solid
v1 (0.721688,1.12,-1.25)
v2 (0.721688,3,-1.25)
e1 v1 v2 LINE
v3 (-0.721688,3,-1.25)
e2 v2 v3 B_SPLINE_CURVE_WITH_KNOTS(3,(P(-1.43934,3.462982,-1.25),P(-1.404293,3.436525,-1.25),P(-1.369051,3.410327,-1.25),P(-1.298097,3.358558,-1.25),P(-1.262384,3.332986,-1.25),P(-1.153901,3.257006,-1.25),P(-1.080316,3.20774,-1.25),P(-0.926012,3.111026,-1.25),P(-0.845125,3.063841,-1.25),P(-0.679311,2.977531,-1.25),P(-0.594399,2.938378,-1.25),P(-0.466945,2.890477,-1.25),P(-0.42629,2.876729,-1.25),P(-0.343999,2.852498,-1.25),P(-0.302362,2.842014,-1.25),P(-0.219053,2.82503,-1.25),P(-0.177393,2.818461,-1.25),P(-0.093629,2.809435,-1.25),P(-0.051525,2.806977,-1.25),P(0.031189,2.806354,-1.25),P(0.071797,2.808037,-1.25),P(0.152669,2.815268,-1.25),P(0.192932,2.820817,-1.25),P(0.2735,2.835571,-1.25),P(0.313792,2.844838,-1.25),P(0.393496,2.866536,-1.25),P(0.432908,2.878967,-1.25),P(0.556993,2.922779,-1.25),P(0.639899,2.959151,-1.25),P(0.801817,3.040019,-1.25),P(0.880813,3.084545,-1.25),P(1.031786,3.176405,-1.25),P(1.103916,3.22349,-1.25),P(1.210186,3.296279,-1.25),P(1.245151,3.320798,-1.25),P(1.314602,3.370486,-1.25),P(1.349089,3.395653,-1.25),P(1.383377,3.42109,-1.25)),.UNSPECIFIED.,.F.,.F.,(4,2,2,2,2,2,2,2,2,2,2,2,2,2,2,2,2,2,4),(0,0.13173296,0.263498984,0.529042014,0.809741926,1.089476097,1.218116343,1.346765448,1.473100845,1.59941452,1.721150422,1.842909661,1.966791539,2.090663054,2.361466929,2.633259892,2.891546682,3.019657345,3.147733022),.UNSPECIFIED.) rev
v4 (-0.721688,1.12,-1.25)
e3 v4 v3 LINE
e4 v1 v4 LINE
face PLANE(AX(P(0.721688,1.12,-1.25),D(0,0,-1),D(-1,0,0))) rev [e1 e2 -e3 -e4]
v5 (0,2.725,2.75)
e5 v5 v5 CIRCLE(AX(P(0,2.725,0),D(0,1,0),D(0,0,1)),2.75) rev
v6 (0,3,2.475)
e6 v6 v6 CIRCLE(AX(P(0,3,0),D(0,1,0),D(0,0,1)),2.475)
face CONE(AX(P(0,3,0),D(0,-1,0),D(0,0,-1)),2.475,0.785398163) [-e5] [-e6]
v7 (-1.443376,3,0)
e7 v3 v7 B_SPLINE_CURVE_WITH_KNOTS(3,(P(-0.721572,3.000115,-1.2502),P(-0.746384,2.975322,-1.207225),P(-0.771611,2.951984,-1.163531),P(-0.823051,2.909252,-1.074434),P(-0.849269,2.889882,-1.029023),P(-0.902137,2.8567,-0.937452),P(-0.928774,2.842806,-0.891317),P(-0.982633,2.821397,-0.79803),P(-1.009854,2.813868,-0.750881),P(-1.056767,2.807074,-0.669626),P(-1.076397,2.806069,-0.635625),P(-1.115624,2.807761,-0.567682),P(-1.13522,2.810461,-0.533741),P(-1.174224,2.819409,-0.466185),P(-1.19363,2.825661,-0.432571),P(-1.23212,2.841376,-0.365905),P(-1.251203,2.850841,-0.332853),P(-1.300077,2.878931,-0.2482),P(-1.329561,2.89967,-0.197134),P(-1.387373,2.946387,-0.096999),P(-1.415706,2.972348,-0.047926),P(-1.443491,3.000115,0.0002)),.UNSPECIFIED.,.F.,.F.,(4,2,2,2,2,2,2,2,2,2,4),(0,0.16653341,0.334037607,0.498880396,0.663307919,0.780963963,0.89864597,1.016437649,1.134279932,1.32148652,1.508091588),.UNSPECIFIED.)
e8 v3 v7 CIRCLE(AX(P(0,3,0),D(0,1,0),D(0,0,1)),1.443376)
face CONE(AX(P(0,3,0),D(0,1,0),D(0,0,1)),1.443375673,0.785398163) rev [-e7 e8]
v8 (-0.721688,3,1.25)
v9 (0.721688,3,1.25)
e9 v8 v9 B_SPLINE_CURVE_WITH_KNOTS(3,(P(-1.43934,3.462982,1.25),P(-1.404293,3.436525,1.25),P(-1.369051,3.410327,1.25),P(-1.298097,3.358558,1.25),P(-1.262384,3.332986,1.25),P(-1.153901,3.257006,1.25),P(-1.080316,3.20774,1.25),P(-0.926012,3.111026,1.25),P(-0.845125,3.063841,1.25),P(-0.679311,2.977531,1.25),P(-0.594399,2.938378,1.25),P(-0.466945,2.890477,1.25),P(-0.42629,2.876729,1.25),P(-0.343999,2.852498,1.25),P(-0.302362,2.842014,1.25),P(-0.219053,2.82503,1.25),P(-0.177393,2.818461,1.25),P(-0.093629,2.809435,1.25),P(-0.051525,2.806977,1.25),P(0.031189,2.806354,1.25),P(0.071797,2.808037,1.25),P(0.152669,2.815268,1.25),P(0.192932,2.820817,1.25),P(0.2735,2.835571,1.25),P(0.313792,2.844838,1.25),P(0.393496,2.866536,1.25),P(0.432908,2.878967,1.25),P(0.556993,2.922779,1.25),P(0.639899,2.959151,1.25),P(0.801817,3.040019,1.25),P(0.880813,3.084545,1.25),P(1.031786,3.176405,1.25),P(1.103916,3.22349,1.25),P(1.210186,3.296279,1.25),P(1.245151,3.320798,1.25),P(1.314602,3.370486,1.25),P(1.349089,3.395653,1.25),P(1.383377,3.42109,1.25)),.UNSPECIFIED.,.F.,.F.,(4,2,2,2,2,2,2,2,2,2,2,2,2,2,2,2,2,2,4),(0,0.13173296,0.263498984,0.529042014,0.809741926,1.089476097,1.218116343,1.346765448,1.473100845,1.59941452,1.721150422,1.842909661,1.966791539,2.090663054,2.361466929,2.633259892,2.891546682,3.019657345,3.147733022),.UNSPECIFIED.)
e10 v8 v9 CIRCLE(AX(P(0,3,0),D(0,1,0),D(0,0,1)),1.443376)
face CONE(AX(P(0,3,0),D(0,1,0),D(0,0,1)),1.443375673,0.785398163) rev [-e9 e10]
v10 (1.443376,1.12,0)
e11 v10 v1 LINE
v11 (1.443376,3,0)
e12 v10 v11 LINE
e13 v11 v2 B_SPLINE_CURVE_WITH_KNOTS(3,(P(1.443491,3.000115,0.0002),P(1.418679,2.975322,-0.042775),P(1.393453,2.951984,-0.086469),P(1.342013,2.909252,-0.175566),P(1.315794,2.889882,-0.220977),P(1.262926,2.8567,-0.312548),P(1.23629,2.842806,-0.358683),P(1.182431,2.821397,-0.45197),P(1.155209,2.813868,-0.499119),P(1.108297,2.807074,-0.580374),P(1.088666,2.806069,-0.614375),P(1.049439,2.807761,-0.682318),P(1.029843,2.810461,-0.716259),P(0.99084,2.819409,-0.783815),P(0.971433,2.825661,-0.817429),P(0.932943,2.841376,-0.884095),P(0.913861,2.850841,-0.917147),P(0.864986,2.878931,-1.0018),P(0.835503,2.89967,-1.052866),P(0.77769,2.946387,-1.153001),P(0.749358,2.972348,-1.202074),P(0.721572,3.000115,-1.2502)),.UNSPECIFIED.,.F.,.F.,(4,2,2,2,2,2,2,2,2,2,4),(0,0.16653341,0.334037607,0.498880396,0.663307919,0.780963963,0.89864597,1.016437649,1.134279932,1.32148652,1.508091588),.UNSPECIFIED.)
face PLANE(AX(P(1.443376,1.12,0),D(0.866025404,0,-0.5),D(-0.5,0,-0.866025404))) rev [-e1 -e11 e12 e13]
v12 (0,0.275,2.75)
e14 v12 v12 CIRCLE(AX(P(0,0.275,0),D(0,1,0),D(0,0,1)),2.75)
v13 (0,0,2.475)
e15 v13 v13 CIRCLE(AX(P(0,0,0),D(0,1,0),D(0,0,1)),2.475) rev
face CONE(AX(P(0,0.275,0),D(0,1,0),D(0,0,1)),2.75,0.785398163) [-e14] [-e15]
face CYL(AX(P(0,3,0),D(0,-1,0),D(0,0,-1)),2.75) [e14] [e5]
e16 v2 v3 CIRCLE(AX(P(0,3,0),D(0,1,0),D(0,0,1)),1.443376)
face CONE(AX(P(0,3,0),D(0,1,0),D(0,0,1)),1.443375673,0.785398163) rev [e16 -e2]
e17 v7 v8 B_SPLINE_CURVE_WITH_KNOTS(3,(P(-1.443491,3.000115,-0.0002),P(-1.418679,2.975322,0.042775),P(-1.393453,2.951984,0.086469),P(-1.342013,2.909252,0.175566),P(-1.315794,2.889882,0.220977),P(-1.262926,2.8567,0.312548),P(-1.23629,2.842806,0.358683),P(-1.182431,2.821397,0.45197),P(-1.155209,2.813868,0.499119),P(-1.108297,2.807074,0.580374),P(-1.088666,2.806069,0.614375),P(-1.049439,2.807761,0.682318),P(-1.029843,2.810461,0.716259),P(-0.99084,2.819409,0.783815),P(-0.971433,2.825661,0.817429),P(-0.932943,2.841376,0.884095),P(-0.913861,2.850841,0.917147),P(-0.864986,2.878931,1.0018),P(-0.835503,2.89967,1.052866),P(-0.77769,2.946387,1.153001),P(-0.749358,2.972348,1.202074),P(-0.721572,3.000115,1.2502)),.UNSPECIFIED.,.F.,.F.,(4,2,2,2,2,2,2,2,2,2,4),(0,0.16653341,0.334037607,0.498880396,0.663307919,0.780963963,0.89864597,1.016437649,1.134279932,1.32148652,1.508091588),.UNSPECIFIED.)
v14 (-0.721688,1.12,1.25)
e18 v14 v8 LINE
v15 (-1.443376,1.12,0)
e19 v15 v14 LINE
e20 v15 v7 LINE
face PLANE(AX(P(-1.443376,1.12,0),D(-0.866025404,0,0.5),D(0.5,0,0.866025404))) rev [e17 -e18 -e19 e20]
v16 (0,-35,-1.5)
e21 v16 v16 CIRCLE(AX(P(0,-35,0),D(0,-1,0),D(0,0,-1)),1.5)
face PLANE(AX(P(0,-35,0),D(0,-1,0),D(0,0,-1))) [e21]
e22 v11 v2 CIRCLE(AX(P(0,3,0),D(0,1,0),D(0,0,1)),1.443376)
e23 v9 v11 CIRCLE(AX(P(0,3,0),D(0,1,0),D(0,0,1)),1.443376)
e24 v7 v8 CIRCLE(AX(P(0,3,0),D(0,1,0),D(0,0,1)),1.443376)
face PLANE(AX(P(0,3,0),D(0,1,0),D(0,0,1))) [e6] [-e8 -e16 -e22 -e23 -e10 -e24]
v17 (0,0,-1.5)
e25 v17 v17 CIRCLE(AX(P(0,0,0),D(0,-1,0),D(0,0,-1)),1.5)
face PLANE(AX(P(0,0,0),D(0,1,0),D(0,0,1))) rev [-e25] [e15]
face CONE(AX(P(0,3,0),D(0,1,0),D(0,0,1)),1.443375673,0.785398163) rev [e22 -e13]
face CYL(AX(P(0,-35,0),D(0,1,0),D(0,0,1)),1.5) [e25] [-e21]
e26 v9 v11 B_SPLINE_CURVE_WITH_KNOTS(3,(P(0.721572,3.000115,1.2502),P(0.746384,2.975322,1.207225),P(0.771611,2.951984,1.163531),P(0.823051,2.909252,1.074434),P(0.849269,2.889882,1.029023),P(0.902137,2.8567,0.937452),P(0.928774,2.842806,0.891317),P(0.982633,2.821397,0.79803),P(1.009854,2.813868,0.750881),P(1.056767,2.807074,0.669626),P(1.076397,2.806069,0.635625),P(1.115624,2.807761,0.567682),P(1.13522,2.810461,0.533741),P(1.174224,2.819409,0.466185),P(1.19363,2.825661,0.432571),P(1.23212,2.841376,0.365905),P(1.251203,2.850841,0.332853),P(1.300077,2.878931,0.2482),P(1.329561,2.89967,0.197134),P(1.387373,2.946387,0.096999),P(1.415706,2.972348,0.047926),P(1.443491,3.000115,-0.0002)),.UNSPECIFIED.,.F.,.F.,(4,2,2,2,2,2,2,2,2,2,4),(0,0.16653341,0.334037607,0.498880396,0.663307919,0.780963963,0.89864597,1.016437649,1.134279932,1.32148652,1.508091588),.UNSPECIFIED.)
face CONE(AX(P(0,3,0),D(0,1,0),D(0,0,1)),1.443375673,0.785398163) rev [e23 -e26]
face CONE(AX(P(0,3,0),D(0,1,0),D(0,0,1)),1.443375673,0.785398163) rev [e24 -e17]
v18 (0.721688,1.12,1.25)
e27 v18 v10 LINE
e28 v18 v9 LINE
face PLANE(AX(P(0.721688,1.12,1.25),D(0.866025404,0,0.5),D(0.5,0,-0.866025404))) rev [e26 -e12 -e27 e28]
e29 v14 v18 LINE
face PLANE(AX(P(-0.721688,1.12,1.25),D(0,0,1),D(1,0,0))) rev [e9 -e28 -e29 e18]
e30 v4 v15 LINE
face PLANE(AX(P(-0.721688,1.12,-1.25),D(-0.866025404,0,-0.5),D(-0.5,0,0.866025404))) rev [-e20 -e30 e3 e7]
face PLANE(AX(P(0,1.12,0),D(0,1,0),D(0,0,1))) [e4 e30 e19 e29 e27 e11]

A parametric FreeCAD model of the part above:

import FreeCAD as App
import Part
import Sketcher
from FreeCAD import Vector
Q = App.Units.Quantity


def edges_at(feature, points):
    """Names of the edges that pass closest to the given points."""
    edges = feature.Shape.Edges
    near = lambda p: min(range(len(edges)), key=lambda i: edges[i].distToShape(Part.Vertex(*p))[0])
    return sorted({f"Edge{near(p) + 1}" for p in points})

doc = App.newDocument("Part")
body = doc.addObject("PartDesign::Body", "Body")

sketch1 = body.newObject("Sketcher::SketchObject", "Sketch")
sketch1.AttachmentSupport = (doc.getObject("XZ_Plane"), [""])
sketch1.MapMode = "FlatFace"
sketch1.addGeometry(Part.Circle(Vector(0, 0, 0), Vector(0, 0, 1), 2.75), False)
sketch1.addConstraint(Sketcher.Constraint("Coincident", 0, 3, -1, 1))
sketch1.addConstraint(Sketcher.Constraint("Diameter", 0, 5.5))
pad1 = body.newObject("PartDesign::Pad", "Pad")
pad1.Profile = sketch1
pad1.Length = 3
pad1.Reversed = True

sketch2 = body.newObject("Sketcher::SketchObject", "Sketch001")
sketch2.AttachmentSupport = (doc.getObject("XZ_Plane"), [""])
sketch2.MapMode = "FlatFace"
sketch2.AttachmentOffset = App.Placement(Vector(0, 0, -3), App.Rotation())
sketch2.addGeometry(Part.LineSegment(Vector(0.721688, -1.25, 0), Vector(-0.721688, -1.25, 0)), False)
sketch2.addGeometry(Part.LineSegment(Vector(-0.721688, -1.25, 0), Vector(-1.443376, 0, 0)), False)
sketch2.addGeometry(Part.LineSegment(Vector(-1.443376, 0, 0), Vector(-0.721688, 1.25, 0)), False)
sketch2.addGeometry(Part.LineSegment(Vector(-0.721688, 1.25, 0), Vector(0.721688, 1.25, 0)), False)
sketch2.addGeometry(Part.LineSegment(Vector(0.721688, 1.25, 0), Vector(1.443376, 0, 0)), False)
sketch2.addGeometry(Part.LineSegment(Vector(1.443376, 0, 0), Vector(0.721688, -1.25, 0)), False)
sketch2.addConstraint(Sketcher.Constraint("Coincident", 0, 2, 1, 1))
sketch2.addConstraint(Sketcher.Constraint("Coincident", 1, 2, 2, 1))
sketch2.addConstraint(Sketcher.Constraint("Coincident", 2, 2, 3, 1))
sketch2.addConstraint(Sketcher.Constraint("Coincident", 3, 2, 4, 1))
sketch2.addConstraint(Sketcher.Constraint("Coincident", 4, 2, 5, 1))
sketch2.addConstraint(Sketcher.Constraint("Coincident", 5, 2, 0, 1))
sketch2.addConstraint(Sketcher.Constraint("Horizontal", 0))
sketch2.addConstraint(Sketcher.Constraint("Horizontal", 3))
sketch2.addConstraint(Sketcher.Constraint("Symmetric", 0, 2, 3, 2, -1, 1))
sketch2.addConstraint(Sketcher.Constraint("Symmetric", 1, 2, 4, 2, -1, 1))
sketch2.addConstraint(Sketcher.Constraint("PointOnObject", 1, 2, -1))
sketch2.addConstraint(Sketcher.Constraint("Parallel", 2, 5))
sketch2.addConstraint(Sketcher.Constraint("Vertical", 0, 2, 2, 2))
sketch2.addConstraint(Sketcher.Constraint("Angle", 1, Q("120 deg")))
sketch2.addConstraint(Sketcher.Constraint("DistanceY", 0, 2, 2, 2, 2.5))
sketch2.addConstraint(Sketcher.Constraint("DistanceX", 0, 2, 0, 1, 1.443376))
pocket1 = body.newObject("PartDesign::Pocket", "Pocket")
pocket1.Profile = sketch2
pocket1.Length = 1.88
pocket1.Reversed = True

sketch3 = body.newObject("Sketcher::SketchObject", "Sketch002")
sketch3.AttachmentSupport = (doc.getObject("YZ_Plane"), [""])
sketch3.MapMode = "FlatFace"
sketch3.addGeometry(Part.LineSegment(Vector(3, 0, 0), Vector(3, 1.443376, 0)), False)
sketch3.addGeometry(Part.LineSegment(Vector(3, 1.443376, 0), Vector(1.556624, 0, 0)), False)
sketch3.addGeometry(Part.LineSegment(Vector(1.556624, 0, 0), Vector(3, 0, 0)), False)
sketch3.addConstraint(Sketcher.Constraint("Coincident", 0, 2, 1, 1))
sketch3.addConstraint(Sketcher.Constraint("Coincident", 1, 2, 2, 1))
sketch3.addConstraint(Sketcher.Constraint("Coincident", 2, 2, 0, 1))
sketch3.addConstraint(Sketcher.Constraint("Vertical", 0))
sketch3.addConstraint(Sketcher.Constraint("Horizontal", 2))
sketch3.addConstraint(Sketcher.Constraint("PointOnObject", 1, 2, -1))
sketch3.addConstraint(Sketcher.Constraint("Equal", 2, 0))
sketch3.addConstraint(Sketcher.Constraint("DistanceX", -1, 1, 0, 2, 3.0))
sketch3.addConstraint(Sketcher.Constraint("Distance", 1, 2.041241))
groove = body.newObject("PartDesign::Groove", "Groove")
groove.Profile = sketch3
groove.ReferenceAxis = (sketch3, ["H_Axis"])
groove.Angle = 360
doc.recompute()

chamfer = body.newObject("PartDesign::Chamfer", "Chamfer")
chamfer.Base = (groove, edges_at(groove, [(0, 0, -2.75), (0, 3, -2.75)]))
chamfer.Size = 0.275

sketch4 = body.newObject("Sketcher::SketchObject", "Sketch003")
sketch4.AttachmentSupport = (doc.getObject("XZ_Plane"), [""])
sketch4.MapMode = "FlatFace"
sketch4.addGeometry(Part.Circle(Vector(0, 0, 0), Vector(0, 0, 1), 1.5), False)
sketch4.addConstraint(Sketcher.Constraint("Coincident", 0, 3, -1, 1))
sketch4.addConstraint(Sketcher.Constraint("Diameter", 0, 3.0))
pad2 = body.newObject("PartDesign::Pad", "Pad001")
pad2.Profile = sketch4
pad2.Length = 35

doc.recompute()
